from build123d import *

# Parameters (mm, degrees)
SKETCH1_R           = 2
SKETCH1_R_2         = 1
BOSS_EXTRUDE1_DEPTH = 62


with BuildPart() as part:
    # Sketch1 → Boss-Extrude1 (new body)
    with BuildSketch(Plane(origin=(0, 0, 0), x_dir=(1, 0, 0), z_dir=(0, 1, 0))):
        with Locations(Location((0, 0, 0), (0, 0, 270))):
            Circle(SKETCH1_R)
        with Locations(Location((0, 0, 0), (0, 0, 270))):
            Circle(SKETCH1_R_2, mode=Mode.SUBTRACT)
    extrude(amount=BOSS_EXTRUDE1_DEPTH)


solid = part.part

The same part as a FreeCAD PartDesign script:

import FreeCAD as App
import Part
import Sketcher
from FreeCAD import Vector

doc = App.newDocument("Part")
params = doc.addObject("Spreadsheet::Sheet", "Params")
for row, (alias, value) in enumerate([
    ("sketch1_diameter", "4 mm"),
    ("sketch1_diameter2", "2 mm"),
    ("pad1_length", "62 mm"),
], start=1):
    params.set(f"A{row}", alias)
    params.set(f"B{row}", "=" + value)
    params.setAlias(f"B{row}", alias)

body = doc.addObject("PartDesign::Body", "Body")

# Sketch on XZ plane
sketch1 = body.newObject("Sketcher::SketchObject", "Sketch")
sketch1.AttachmentSupport = (doc.getObject("XZ_Plane"), [""])
sketch1.MapMode = "FlatFace"
sketch1.addGeometry(Part.Circle(Vector(0, 0, 0), Vector(0, 0, 1), 2), False)
sketch1.addGeometry(Part.Circle(Vector(0, 0, 0), Vector(0, 0, 1), 1), False)
sketch1.addConstraint(Sketcher.Constraint("Coincident", 0, 3, -1, 1))
sketch1.addConstraint(Sketcher.Constraint("Coincident", 1, 3, -1, 1))
sketch1.addConstraint(Sketcher.Constraint("Diameter", 0, 4.0))
sketch1.addConstraint(Sketcher.Constraint("Diameter", 1, 2.0))
sketch1.setExpression("Constraints[2]", "Params.sketch1_diameter")
sketch1.setExpression("Constraints[3]", "Params.sketch1_diameter2")
pad1 = body.newObject("PartDesign::Pad", "Pad")
pad1.Profile = sketch1
pad1.setExpression("Length", "Params.pad1_length")
pad1.Reversed = True

doc.recompute()
